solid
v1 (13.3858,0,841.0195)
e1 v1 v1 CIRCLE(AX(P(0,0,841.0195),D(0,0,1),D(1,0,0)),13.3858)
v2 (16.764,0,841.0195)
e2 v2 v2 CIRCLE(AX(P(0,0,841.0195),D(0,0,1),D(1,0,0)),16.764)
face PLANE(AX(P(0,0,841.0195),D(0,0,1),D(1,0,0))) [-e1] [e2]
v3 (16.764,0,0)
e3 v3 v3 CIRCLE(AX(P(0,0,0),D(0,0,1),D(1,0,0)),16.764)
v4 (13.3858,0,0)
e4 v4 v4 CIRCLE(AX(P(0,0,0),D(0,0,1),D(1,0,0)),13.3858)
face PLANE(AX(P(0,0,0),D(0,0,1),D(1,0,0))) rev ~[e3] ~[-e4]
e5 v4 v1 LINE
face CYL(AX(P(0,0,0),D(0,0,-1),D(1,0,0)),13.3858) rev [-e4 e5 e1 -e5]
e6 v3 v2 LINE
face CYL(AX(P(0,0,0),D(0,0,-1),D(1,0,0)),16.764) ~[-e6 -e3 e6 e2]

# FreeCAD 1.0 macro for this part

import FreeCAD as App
import Part
import Sketcher

V = App.Vector
Q = App.Units.Quantity

doc = App.newDocument("Part")
params = doc.addObject("Spreadsheet::Sheet", "Params")
for row, (alias, value) in enumerate([
    ("sketch1_diameter", "1.32 in"),
    ("sketch1_diameter2", "1.054 in"),
    ("pad1_length", "33.1110039 in"),
], start=1):
    params.set(f"A{row}", alias)
    params.set(f"B{row}", "=" + value)
    params.setAlias(f"B{row}", alias)

body = doc.addObject("PartDesign::Body", "Body")

# Sketch on XY plane
sketch1 = doc.addObject("Sketcher::SketchObject", "Sketch")
body.addObject(sketch1)
sketch1.AttachmentSupport = (doc.XY_Plane, [""])
sketch1.MapMode = "FlatFace"
sketch1.addGeometry([
    Part.Circle(V(0, 0, 0), V(0, 0, 1), 16.764),
    Part.Circle(V(0, 0, 0), V(0, 0, 1), 13.3858),
], False)
sketch1.addConstraint([
    Sketcher.Constraint("Coincident", 0, 3, -1, 1),
    Sketcher.Constraint("Coincident", 1, 3, -1, 1),
    Sketcher.Constraint("Diameter", 0, Q("1.32 in")),
    Sketcher.Constraint("Diameter", 1, Q("1.054 in")),
])
sketch1.setExpression("Constraints[2]", "Params.sketch1_diameter")
sketch1.setExpression("Constraints[3]", "Params.sketch1_diameter2")
pad1 = doc.addObject("PartDesign::Pad", "Pad")
body.addObject(pad1)
pad1.Profile = sketch1
pad1.setExpression("Length", "Params.pad1_length")

doc.recompute()
